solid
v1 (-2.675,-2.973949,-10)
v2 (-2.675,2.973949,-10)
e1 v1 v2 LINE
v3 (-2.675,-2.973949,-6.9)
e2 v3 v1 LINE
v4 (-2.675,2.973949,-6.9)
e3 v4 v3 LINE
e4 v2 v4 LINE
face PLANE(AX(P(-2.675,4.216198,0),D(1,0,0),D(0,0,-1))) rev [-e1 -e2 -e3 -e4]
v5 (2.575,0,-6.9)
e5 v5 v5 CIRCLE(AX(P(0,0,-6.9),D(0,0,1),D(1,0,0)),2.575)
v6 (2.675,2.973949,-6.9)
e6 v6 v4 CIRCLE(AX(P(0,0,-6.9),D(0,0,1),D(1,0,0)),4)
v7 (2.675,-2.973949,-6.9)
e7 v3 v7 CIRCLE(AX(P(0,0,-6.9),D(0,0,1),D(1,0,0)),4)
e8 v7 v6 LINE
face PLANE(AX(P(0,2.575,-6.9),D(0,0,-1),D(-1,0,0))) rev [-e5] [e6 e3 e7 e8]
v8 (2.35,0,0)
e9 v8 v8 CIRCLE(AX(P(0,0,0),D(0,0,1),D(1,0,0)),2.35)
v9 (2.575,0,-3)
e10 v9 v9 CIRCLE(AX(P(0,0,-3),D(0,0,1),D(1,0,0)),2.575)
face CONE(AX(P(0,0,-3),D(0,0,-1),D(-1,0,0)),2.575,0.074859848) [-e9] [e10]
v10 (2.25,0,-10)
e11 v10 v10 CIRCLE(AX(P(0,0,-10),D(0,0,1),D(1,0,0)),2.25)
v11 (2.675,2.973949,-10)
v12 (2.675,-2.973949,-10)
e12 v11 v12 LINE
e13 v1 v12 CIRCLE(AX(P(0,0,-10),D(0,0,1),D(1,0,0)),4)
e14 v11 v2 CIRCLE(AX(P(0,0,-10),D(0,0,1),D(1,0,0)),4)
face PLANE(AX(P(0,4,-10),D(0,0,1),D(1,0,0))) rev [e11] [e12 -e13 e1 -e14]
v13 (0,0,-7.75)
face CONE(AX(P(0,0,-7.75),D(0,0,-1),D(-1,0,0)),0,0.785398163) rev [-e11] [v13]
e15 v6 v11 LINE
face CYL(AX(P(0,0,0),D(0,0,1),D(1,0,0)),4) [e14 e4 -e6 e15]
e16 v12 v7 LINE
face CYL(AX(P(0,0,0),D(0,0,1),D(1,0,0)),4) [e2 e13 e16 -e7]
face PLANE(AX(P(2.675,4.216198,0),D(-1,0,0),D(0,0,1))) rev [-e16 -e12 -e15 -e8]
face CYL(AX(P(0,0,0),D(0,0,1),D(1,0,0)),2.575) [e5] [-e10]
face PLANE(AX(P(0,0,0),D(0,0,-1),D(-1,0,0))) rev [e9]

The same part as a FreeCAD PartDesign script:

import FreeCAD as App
import Part
import Sketcher
Q = App.Units.Quantity

doc = App.newDocument("Part")
body = doc.addObject("PartDesign::Body", "Body")

# Sketch on YZ plane
sketch1 = body.newObject("Sketcher::SketchObject", "Sketch")
sketch1.AttachmentSupport = (doc.getObject("YZ_Plane"), [""])
sketch1.MapMode = "FlatFace"
sketch1.addGeometry([
    Part.LineSegment(App.Vector(2.4, 0, 0), App.Vector(0, 0, 0)),  # 0
    Part.LineSegment(App.Vector(0, 0, 0), App.Vector(0, -7.8, 0)),  # 1
    Part.LineSegment(App.Vector(0, -7.8, 0), App.Vector(2.2, -10, 0)),  # 2
    Part.LineSegment(App.Vector(2.2, -10, 0), App.Vector(4, -10, 0)),  # 3
    Part.LineSegment(App.Vector(4, -10, 0), App.Vector(4, -6.9, 0)),  # 4
    Part.LineSegment(App.Vector(4, -6.9, 0), App.Vector(2.6, -6.9, 0)),  # 5
    Part.LineSegment(App.Vector(2.6, -6.9, 0), App.Vector(2.6, -3, 0)),  # 6
    Part.LineSegment(App.Vector(2.6, -3, 0), App.Vector(2.4, 0, 0)),  # 7
], False)
sketch1.addConstraint([
    Sketcher.Constraint("Coincident", 0, 2, 1, 1),
    Sketcher.Constraint("Coincident", 1, 2, 2, 1),
    Sketcher.Constraint("Coincident", 2, 2, 3, 1),
    Sketcher.Constraint("Coincident", 3, 2, 4, 1),
    Sketcher.Constraint("Coincident", 4, 2, 5, 1),
    Sketcher.Constraint("Coincident", 5, 2, 6, 1),
    Sketcher.Constraint("Coincident", 6, 2, 7, 1),
    Sketcher.Constraint("Coincident", 7, 2, 0, 1),
    Sketcher.Constraint("Horizontal", 0),
    Sketcher.Constraint("Vertical", 1),
    Sketcher.Constraint("Horizontal", 3),
    Sketcher.Constraint("Vertical", 4),
    Sketcher.Constraint("Horizontal", 5),
    Sketcher.Constraint("Vertical", 6),
    Sketcher.Constraint("Coincident", 0, 2, -1, 1),
    Sketcher.Constraint("Angle", 2, Q("-45 deg")),
    Sketcher.Constraint("DistanceY", 4, 1, 4, 2, 3.1),
    Sketcher.Constraint("DistanceY", 6, 1, 6, 2, 3.9),
    Sketcher.Constraint("DistanceY", 2, 2, -1, 1, 10.0),
    Sketcher.Constraint("DistanceX", -1, 1, 3, 2, 4.0),
    Sketcher.Constraint("DistanceX", 0, 2, 0, 1, 2.35),
    Sketcher.Constraint("DistanceX", 3, 1, 3, 2, 1.75),
    Sketcher.Constraint("DistanceX", 5, 2, 5, 1, 1.425),
])
revolution = body.newObject("PartDesign::Revolution", "Revolution")
revolution.Profile = sketch1
revolution.ReferenceAxis = (sketch1, ["V_Axis"])
revolution.Angle = 360

# Sketch on XY plane
sketch2 = body.newObject("Sketcher::SketchObject", "Sketch001")
sketch2.AttachmentSupport = (doc.getObject("XY_Plane"), [""])
sketch2.MapMode = "FlatFace"
sketch2.AttachmentOffset = App.Placement(App.Vector(0, 0, -10), App.Rotation())
sketch2.addGeometry([
    Part.LineSegment(App.Vector(-2.7, 4.2, 0), App.Vector(-2.7, -4.2, 0)),  # 0
    Part.LineSegment(App.Vector(-2.7, -4.2, 0), App.Vector(-5.3, -4.2, 0)),  # 1
    Part.LineSegment(App.Vector(-5.3, -4.2, 0), App.Vector(-5.3, 4.2, 0)),  # 2
    Part.LineSegment(App.Vector(-5.3, 4.2, 0), App.Vector(-2.7, 4.2, 0)),  # 3
    Part.LineSegment(App.Vector(5.3, 4.2, 0), App.Vector(5.3, -4.2, 0)),  # 4
    Part.LineSegment(App.Vector(5.3, -4.2, 0), App.Vector(2.7, -4.2, 0)),  # 5
    Part.LineSegment(App.Vector(2.7, -4.2, 0), App.Vector(2.7, 4.2, 0)),  # 6
    Part.LineSegment(App.Vector(2.7, 4.2, 0), App.Vector(5.3, 4.2, 0)),  # 7
], False)
sketch2.addConstraint([
    Sketcher.Constraint("Coincident", 0, 2, 1, 1),
    Sketcher.Constraint("Coincident", 1, 2, 2, 1),
    Sketcher.Constraint("Coincident", 2, 2, 3, 1),
    Sketcher.Constraint("Coincident", 3, 2, 0, 1),
    Sketcher.Constraint("Coincident", 4, 2, 5, 1),
    Sketcher.Constraint("Coincident", 5, 2, 6, 1),
    Sketcher.Constraint("Coincident", 6, 2, 7, 1),
    Sketcher.Constraint("Coincident", 7, 2, 4, 1),
    Sketcher.Constraint("Vertical", 0),
    Sketcher.Constraint("Horizontal", 1),
    Sketcher.Constraint("Vertical", 2),
    Sketcher.Constraint("Horizontal", 3),
    Sketcher.Constraint("Vertical", 4),
    Sketcher.Constraint("Horizontal", 5),
    Sketcher.Constraint("Vertical", 6),
    Sketcher.Constraint("Horizontal", 7),
    Sketcher.Constraint("Symmetric", 2, 2, 4, 2, -1, 1),
    Sketcher.Constraint("Symmetric", 0, 2, 6, 2, -1, 1),
    Sketcher.Constraint("Horizontal", 1, 2, 4, 2),
    Sketcher.Constraint("DistanceX", 0, 2, 5, 2, 5.35),
    Sketcher.Constraint("DistanceX", 1, 2, 1, 1, 2.584728),
    Sketcher.Constraint("DistanceY", 0, 2, -1, 1, 4.216198),
])
pocket1 = body.newObject("PartDesign::Pocket", "Pocket")
pocket1.Profile = sketch2
pocket1.Type = "ThroughAll"
pocket1.Reversed = True

doc.recompute()
